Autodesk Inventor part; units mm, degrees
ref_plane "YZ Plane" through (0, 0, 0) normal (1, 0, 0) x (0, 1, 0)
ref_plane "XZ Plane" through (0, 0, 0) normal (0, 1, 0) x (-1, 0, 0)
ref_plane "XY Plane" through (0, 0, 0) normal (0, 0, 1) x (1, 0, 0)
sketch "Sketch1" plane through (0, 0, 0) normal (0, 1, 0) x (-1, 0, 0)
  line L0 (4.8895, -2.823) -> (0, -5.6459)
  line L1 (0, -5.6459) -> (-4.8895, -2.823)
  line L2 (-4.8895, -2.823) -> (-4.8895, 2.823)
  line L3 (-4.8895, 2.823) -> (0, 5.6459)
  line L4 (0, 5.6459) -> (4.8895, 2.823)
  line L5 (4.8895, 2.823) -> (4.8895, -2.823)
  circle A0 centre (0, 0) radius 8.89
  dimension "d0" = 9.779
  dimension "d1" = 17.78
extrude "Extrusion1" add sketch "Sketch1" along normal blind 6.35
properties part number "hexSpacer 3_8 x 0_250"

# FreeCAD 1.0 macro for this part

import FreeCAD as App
import Part
import Sketcher
Q = App.Units.Quantity


def add_polygon(sketch, points):
    """Adds a closed chain of lines whose ends are joined by coincident constraints."""
    first, n = sketch.GeometryCount, len(points)
    for a, b in zip(points, points[1:] + points[:1]):
        sketch.addGeometry(Part.LineSegment(App.Vector(*a, 0), App.Vector(*b, 0)), False)
    for i in range(n):
        sketch.addConstraint(Sketcher.Constraint("Coincident", first + i, 2, first + (i + 1) % n, 1))

doc = App.newDocument("Part")
body = doc.addObject("PartDesign::Body", "Body")

# Sketch on XZ plane
sketch1 = body.newObject("Sketcher::SketchObject", "Sketch")
sketch1.AttachmentSupport = (doc.getObject("XZ_Plane"), [""])
sketch1.MapMode = "FlatFace"
sketch1.addGeometry(Part.Circle(App.Vector(0, 0, 0), App.Vector(0, 0, 1), 8.89), False)  # 0
add_polygon(sketch1, [(-4.8895, 2.823), (-4.8895, -2.823), (0, -5.6459), (4.8895, -2.823), (4.8895, 2.823), (0, 5.6459)])  # lines 1-6
sketch1.addConstraint([
    Sketcher.Constraint("Vertical", 1),
    Sketcher.Constraint("Vertical", 4),
    Sketcher.Constraint("Coincident", 0, 3, -1, 1),
    Sketcher.Constraint("Symmetric", 1, 2, 4, 2, -1, 1),
    Sketcher.Constraint("Symmetric", 2, 2, 5, 2, -1, 1),
    Sketcher.Constraint("PointOnObject", 2, 2, -2),
    Sketcher.Constraint("Parallel", 3, 6),
    Sketcher.Constraint("Horizontal", 1, 2, 3, 2),
    Sketcher.Constraint("Diameter", 0, Q("0.7 in")),
    Sketcher.Constraint("Angle", 2, Q("-29.9995 deg")),
    Sketcher.Constraint("DistanceX", 1, 2, 3, 2, Q("0.385 in")),
    Sketcher.Constraint("DistanceY", 1, 2, 1, 1, 5.646),
])
pad1 = body.newObject("PartDesign::Pad", "Pad")
pad1.Profile = sketch1
pad1.Length = Q("0.25 in")
pad1.Reversed = True

doc.recompute()
